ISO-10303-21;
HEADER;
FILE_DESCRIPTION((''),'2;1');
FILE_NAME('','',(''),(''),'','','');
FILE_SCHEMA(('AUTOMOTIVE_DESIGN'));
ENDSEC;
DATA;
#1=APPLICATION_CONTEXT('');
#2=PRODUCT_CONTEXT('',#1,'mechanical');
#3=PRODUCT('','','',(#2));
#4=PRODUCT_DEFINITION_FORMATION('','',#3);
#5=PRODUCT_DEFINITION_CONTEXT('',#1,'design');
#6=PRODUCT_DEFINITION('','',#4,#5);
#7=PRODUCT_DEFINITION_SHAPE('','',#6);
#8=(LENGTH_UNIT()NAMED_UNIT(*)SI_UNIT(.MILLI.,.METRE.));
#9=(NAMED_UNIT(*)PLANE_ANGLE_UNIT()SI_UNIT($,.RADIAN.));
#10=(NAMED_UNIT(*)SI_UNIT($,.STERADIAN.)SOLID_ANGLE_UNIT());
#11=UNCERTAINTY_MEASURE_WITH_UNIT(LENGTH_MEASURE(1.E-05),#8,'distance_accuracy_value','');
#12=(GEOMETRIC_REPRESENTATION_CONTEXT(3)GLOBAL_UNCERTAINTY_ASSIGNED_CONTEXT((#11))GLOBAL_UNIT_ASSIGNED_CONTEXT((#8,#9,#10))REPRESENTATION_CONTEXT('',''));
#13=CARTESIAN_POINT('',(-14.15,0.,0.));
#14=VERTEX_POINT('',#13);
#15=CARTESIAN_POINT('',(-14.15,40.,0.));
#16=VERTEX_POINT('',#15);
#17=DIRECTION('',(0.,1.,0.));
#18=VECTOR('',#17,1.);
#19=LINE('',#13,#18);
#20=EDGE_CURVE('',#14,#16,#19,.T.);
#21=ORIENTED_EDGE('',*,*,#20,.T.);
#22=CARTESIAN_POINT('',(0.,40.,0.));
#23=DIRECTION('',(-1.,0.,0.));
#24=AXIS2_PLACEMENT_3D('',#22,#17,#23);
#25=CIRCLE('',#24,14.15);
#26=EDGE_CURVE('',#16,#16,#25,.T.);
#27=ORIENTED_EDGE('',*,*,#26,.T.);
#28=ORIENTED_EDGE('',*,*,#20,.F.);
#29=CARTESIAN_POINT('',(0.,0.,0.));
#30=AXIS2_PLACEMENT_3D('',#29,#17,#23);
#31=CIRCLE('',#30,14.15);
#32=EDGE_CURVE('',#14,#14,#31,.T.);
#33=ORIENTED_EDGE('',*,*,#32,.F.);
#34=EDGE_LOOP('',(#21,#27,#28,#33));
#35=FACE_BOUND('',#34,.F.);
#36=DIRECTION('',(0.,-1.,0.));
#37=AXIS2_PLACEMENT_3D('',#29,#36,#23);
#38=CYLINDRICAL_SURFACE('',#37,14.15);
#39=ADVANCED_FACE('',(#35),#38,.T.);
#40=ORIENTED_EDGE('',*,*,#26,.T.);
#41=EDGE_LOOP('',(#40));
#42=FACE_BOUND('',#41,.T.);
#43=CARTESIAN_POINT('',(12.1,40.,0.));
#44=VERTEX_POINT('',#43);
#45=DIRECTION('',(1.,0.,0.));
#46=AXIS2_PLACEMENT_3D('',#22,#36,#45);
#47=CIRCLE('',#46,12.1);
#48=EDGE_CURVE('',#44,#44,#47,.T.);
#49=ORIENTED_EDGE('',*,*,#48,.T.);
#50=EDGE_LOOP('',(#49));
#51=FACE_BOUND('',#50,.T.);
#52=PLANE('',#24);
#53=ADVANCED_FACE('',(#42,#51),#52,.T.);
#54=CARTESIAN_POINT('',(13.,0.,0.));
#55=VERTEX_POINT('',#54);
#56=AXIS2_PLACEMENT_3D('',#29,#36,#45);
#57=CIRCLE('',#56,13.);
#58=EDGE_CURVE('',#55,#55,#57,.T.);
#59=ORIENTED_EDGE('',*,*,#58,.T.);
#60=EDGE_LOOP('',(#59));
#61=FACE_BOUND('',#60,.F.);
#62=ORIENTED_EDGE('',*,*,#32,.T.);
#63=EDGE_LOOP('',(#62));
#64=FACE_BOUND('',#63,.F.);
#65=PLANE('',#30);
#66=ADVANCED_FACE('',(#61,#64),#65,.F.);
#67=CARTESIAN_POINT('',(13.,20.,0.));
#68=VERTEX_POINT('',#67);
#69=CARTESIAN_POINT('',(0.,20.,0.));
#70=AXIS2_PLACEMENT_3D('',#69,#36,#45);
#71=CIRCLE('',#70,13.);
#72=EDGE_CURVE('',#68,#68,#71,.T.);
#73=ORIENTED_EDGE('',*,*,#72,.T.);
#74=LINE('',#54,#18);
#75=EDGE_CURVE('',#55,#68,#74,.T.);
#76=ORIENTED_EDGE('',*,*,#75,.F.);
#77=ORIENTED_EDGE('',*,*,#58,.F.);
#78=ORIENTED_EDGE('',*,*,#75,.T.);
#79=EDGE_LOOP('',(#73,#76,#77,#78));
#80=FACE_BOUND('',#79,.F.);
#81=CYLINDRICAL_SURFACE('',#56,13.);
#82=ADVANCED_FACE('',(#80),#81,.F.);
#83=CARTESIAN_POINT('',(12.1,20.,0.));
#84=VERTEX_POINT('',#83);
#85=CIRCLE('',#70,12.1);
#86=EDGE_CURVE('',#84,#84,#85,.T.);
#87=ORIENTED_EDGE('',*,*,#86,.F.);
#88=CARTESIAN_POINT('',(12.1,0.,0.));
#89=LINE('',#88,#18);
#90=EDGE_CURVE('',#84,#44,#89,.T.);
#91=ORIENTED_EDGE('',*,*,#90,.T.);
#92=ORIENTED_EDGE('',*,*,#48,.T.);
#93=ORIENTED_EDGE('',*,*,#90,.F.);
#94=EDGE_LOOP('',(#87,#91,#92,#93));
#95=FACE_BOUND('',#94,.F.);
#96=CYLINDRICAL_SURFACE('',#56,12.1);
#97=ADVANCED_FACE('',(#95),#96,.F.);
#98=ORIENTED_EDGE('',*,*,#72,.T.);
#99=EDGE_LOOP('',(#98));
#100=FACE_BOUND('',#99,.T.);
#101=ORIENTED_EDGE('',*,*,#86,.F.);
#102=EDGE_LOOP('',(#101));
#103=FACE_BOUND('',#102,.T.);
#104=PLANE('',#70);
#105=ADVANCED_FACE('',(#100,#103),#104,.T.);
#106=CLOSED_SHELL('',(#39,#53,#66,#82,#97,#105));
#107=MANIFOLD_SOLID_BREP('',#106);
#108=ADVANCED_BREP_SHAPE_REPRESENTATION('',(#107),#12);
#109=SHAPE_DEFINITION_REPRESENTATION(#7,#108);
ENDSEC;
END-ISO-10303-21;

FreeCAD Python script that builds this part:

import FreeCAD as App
import Part
import Sketcher

doc = App.newDocument("Part")
body = doc.addObject("PartDesign::Body", "Body")

sketch1 = body.newObject("Sketcher::SketchObject", "Sketch")
sketch1.AttachmentSupport = (doc.getObject("XZ_Plane"), [""])
sketch1.MapMode = "FlatFace"
sketch1.addGeometry(Part.Circle(App.Vector(0, 0, 0), App.Vector(0, 0, 1), 14), False)
sketch1.addConstraint([
    Sketcher.Constraint("Coincident", 0, 3, -1, 1),
    Sketcher.Constraint("Diameter", 0, 28.3),
])
pad1 = body.newObject("PartDesign::Pad", "Pad")
pad1.Profile = sketch1
pad1.Length = 40
pad1.Reversed = True

sketch2 = body.newObject("Sketcher::SketchObject", "Sketch001")
sketch2.AttachmentSupport = (doc.getObject("XZ_Plane"), [""])
sketch2.MapMode = "FlatFace"
sketch2.addGeometry(Part.Circle(App.Vector(0, 0, 0), App.Vector(0, 0, 1), 12), False)
sketch2.addConstraint([
    Sketcher.Constraint("Coincident", 0, 3, -1, 1),
    Sketcher.Constraint("Diameter", 0, 24.2),
])
pocket1 = body.newObject("PartDesign::Pocket", "Pocket")
pocket1.Profile = sketch2
pocket1.Length = 40

sketch3 = body.newObject("Sketcher::SketchObject", "Sketch002")
sketch3.AttachmentSupport = (doc.getObject("XZ_Plane"), [""])
sketch3.MapMode = "FlatFace"
sketch3.addGeometry(Part.Circle(App.Vector(0, 0, 0), App.Vector(0, 0, 1), 13), False)
sketch3.addConstraint([
    Sketcher.Constraint("Coincident", 0, 3, -1, 1),
    Sketcher.Constraint("Diameter", 0, 26.0),
])
pocket2 = body.newObject("PartDesign::Pocket", "Pocket001")
pocket2.Profile = sketch3
pocket2.Length = 20

doc.recompute()
